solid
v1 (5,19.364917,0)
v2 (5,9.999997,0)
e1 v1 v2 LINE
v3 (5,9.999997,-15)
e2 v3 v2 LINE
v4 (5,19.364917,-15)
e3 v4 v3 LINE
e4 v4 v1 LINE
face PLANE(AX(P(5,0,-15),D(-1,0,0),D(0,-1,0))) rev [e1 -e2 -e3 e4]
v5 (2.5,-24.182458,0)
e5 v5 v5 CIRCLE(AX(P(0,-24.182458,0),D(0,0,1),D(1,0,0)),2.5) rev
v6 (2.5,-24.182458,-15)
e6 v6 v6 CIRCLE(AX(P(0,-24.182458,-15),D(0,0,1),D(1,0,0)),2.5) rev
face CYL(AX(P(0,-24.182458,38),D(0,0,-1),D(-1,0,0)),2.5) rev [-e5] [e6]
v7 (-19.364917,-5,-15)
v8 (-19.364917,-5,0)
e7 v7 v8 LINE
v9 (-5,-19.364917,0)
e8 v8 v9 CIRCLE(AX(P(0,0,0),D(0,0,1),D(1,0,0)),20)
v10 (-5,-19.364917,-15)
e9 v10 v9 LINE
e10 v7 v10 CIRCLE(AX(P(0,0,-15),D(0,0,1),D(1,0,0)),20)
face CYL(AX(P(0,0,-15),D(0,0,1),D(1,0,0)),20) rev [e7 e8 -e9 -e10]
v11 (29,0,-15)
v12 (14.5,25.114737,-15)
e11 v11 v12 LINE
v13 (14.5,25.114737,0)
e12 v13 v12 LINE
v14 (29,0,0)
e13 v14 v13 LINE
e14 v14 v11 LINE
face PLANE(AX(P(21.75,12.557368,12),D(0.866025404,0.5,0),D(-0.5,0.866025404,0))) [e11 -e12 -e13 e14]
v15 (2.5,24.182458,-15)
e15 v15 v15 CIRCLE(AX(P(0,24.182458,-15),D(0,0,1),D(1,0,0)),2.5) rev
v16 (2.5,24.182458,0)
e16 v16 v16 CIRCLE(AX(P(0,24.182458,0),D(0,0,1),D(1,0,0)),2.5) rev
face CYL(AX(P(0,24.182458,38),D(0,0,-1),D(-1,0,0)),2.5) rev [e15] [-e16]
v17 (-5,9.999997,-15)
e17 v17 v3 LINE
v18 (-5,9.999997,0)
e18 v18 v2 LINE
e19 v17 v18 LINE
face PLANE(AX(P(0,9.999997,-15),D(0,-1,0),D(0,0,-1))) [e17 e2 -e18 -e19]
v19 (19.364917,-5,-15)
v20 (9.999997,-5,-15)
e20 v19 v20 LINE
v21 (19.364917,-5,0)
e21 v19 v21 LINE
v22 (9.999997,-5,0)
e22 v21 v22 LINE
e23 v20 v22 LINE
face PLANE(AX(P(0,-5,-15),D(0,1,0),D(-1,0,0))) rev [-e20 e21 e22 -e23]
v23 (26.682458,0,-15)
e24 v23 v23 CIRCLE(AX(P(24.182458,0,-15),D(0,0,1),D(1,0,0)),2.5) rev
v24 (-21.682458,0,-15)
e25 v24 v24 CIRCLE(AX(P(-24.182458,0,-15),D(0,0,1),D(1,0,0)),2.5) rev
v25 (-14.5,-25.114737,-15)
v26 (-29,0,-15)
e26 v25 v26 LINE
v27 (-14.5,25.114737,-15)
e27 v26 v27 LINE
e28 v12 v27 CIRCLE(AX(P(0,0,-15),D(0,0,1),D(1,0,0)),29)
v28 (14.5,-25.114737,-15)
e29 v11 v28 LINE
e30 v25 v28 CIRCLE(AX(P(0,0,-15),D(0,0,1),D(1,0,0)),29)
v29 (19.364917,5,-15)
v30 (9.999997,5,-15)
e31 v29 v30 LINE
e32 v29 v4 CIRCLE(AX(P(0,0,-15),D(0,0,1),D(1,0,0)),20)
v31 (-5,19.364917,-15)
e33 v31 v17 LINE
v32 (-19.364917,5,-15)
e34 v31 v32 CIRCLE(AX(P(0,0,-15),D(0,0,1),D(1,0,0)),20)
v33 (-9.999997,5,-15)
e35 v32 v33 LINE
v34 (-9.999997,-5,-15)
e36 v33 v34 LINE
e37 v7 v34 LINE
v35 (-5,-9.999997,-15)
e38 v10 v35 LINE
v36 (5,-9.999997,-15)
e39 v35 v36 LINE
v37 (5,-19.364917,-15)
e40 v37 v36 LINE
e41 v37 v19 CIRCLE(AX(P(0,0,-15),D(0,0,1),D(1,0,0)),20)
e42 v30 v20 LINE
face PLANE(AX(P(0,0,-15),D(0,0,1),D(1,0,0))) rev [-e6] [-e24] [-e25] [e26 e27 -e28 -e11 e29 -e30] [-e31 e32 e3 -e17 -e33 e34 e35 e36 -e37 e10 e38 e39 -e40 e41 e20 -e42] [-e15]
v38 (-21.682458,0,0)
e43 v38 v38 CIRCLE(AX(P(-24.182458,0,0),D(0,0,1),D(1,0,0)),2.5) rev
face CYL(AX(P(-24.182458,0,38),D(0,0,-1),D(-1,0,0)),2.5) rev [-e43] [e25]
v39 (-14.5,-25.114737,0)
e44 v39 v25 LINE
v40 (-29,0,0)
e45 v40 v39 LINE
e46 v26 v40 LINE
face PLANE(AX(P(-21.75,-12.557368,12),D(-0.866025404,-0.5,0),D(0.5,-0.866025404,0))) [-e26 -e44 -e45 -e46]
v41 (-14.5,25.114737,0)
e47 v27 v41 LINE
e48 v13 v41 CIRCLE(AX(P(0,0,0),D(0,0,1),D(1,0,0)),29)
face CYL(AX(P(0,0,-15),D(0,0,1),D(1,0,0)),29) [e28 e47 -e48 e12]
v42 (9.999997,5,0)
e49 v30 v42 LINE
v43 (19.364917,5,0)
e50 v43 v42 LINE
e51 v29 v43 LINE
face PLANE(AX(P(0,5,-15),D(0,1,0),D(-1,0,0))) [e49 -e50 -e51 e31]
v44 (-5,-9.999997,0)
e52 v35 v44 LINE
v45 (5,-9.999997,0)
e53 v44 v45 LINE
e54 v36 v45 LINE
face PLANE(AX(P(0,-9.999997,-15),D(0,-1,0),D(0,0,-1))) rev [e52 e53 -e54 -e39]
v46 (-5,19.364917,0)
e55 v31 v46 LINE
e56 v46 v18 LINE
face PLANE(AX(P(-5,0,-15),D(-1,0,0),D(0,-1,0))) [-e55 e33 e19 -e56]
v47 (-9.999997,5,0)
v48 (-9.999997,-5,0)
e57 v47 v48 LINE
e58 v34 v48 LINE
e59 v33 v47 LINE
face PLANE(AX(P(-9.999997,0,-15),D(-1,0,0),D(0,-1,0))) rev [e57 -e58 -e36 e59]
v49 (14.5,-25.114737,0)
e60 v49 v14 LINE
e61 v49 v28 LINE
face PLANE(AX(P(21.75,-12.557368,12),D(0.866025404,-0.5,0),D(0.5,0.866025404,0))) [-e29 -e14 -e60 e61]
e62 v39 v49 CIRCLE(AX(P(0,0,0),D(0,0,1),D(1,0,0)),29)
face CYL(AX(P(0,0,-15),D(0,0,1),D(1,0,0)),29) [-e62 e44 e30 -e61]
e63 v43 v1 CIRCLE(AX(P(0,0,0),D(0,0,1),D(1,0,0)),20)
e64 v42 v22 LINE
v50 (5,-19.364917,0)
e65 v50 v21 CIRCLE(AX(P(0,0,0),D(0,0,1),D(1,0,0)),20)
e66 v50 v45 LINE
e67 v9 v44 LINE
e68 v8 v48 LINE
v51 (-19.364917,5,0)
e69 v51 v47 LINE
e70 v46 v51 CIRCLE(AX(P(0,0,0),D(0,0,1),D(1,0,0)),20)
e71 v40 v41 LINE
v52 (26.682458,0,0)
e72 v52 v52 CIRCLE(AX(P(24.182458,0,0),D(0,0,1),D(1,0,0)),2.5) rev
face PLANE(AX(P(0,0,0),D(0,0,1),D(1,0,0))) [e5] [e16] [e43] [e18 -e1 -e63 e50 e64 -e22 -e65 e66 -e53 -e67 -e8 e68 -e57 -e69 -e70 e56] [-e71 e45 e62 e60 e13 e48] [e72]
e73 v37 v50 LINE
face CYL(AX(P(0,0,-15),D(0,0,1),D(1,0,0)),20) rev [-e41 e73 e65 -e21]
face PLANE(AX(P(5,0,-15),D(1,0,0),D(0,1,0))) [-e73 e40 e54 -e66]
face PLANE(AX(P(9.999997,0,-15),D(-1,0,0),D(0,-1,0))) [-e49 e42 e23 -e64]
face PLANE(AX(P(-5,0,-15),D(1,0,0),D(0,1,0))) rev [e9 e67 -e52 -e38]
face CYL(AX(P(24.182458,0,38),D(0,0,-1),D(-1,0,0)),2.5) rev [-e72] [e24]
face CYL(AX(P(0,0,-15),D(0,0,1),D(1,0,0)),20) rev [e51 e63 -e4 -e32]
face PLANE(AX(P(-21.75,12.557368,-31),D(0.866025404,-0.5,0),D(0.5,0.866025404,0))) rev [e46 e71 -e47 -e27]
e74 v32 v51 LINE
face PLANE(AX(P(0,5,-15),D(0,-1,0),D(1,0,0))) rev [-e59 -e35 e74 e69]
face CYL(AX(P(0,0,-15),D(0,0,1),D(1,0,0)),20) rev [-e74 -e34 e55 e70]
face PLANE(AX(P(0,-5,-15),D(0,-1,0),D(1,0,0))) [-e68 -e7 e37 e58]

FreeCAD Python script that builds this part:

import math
import FreeCAD as App
import Part
import Sketcher
from FreeCAD import Vector
Q = App.Units.Quantity

doc = App.newDocument("Part")
body = doc.addObject("PartDesign::Body", "Body")

sketch1 = doc.addObject("Sketcher::SketchObject", "Sketch")
body.addObject(sketch1)
sketch1.AttachmentSupport = (doc.XY_Plane, [""])
sketch1.MapMode = "FlatFace"
sketch1.addGeometry([
    Part.Circle(Vector(0, 0, 0), Vector(0, 0, 1), 29),
    Part.Circle(Vector(0, 0, 0), Vector(0, 0, 1), 20),
], False)
sketch1.addConstraint([
    Sketcher.Constraint("Coincident", 0, 3, -1, 1),
    Sketcher.Constraint("Coincident", 1, 3, -1, 1),
    Sketcher.Constraint("Diameter", 0, Q("58 mm")),
    Sketcher.Constraint("Diameter", 1, Q("40 mm")),
])
pad1 = doc.addObject("PartDesign::Pad", "Pad")
body.addObject(pad1)
pad1.Profile = sketch1
pad1.Length = 15
pad1.Reversed = True

sketch2 = doc.addObject("Sketcher::SketchObject", "Sketch001")
body.addObject(sketch2)
sketch2.AttachmentSupport = (doc.XY_Plane, [""])
sketch2.MapMode = "FlatFace"
sketch2.addGeometry([
    Part.ArcOfCircle(Part.Circle(Vector(0, 0, 0), Vector(0, 0, 1), 20), math.radians(0), math.radians(14.48)),
    Part.LineSegment(Vector(19, 5, 0), Vector(10, 5, 0)),
    Part.LineSegment(Vector(10, 5, 0), Vector(10, -5, 0)),
    Part.LineSegment(Vector(10, -5, 0), Vector(19, -5, 0)),
    Part.ArcOfCircle(Part.Circle(Vector(0, 0, 0), Vector(0, 0, 1), 20), math.radians(-14.48), math.radians(0)),
    Part.ArcOfCircle(Part.Circle(Vector(0, 0, 0), Vector(0, 0, 1), 20), math.radians(76), math.radians(104)),
    Part.LineSegment(Vector(-5, 19, 0), Vector(-5, 10, 0)),
    Part.LineSegment(Vector(-5, 10, 0), Vector(5, 10, 0)),
    Part.LineSegment(Vector(5, 10, 0), Vector(5, 19, 0)),
    Part.LineSegment(Vector(-10, -5, 0), Vector(-10, 5, 0)),
    Part.LineSegment(Vector(-10, 5, 0), Vector(-19, 5, 0)),
    Part.ArcOfCircle(Part.Circle(Vector(0, 0, 0), Vector(0, 0, 1), 20), math.radians(166), math.radians(194)),
    Part.LineSegment(Vector(-19, -5, 0), Vector(-10, -5, 0)),
    Part.LineSegment(Vector(-5, -10, 0), Vector(-5, -19, 0)),
    Part.ArcOfCircle(Part.Circle(Vector(0, 0, 0), Vector(0, 0, 1), 20), math.radians(-104), math.radians(-76)),
    Part.LineSegment(Vector(5, -19, 0), Vector(5, -10, 0)),
    Part.LineSegment(Vector(5, -10, 0), Vector(-5, -10, 0)),
], False)
sketch2.addConstraint([
    Sketcher.Constraint("Coincident", 0, 2, 1, 1),
    Sketcher.Constraint("Coincident", 1, 2, 2, 1),
    Sketcher.Constraint("Coincident", 2, 2, 3, 1),
    Sketcher.Constraint("Coincident", 3, 2, 4, 1),
    Sketcher.Constraint("Tangent", 4, 2, 0, 1),
    Sketcher.Constraint("Coincident", 5, 2, 6, 1),
    Sketcher.Constraint("Coincident", 6, 2, 7, 1),
    Sketcher.Constraint("Coincident", 7, 2, 8, 1),
    Sketcher.Constraint("Coincident", 8, 2, 5, 1),
    Sketcher.Constraint("Coincident", 9, 2, 10, 1),
    Sketcher.Constraint("Coincident", 10, 2, 11, 1),
    Sketcher.Constraint("Coincident", 11, 2, 12, 1),
    Sketcher.Constraint("Coincident", 12, 2, 9, 1),
    Sketcher.Constraint("Coincident", 13, 2, 14, 1),
    Sketcher.Constraint("Coincident", 14, 2, 15, 1),
    Sketcher.Constraint("Coincident", 15, 2, 16, 1),
    Sketcher.Constraint("Coincident", 16, 2, 13, 1),
    Sketcher.Constraint("Horizontal", 1),
    Sketcher.Constraint("Vertical", 2),
    Sketcher.Constraint("Horizontal", 3),
    Sketcher.Constraint("Vertical", 6),
    Sketcher.Constraint("Horizontal", 7),
    Sketcher.Constraint("Vertical", 8),
    Sketcher.Constraint("Vertical", 9),
    Sketcher.Constraint("Horizontal", 10),
    Sketcher.Constraint("Horizontal", 12),
    Sketcher.Constraint("Vertical", 13),
    Sketcher.Constraint("Vertical", 15),
    Sketcher.Constraint("Horizontal", 16),
    Sketcher.Constraint("Coincident", 0, 3, -1, 1),
    Sketcher.Constraint("Coincident", 5, 3, -1, 1),
    Sketcher.Constraint("Coincident", 11, 3, -1, 1),
    Sketcher.Constraint("Coincident", 14, 3, -1, 1),
    Sketcher.Constraint("Equal", 0, 4),
    Sketcher.Constraint("Equal", 4, 5),
    Sketcher.Constraint("Equal", 5, 11),
    Sketcher.Constraint("Equal", 11, 14),
    Sketcher.Constraint("Symmetric", 2, 2, 9, 2, -1, 1),
    Sketcher.Constraint("Symmetric", 6, 2, 15, 2, -1, 1),
    Sketcher.Constraint("PointOnObject", 4, 2, -1),
    Sketcher.Constraint("Horizontal", 5, 2, 8, 2),
    Sketcher.Constraint("Horizontal", 1, 2, 9, 2),
    Sketcher.Constraint("Horizontal", 3, 2, 11, 2),
    Sketcher.Constraint("Horizontal", 13, 2, 14, 2),
    Sketcher.Constraint("Equal", 16, 2),
    Sketcher.Constraint("Equal", 12, 6),
    Sketcher.Constraint("Radius", 0, Q("20 mm")),
    Sketcher.Constraint("DistanceX", 7, 1, 7, 2, Q("10 mm")),
    Sketcher.Constraint("DistanceX", 1, 2, 1, 1, Q("9.36492 mm")),
])
pad2 = doc.addObject("PartDesign::Pad", "Pad001")
body.addObject(pad2)
pad2.Profile = sketch2
pad2.Length = 15
pad2.Reversed = True

sketch3 = doc.addObject("Sketcher::SketchObject", "Sketch002")
body.addObject(sketch3)
sketch3.AttachmentSupport = (doc.XY_Plane, [""])
sketch3.MapMode = "FlatFace"
sketch3.addGeometry([
    Part.Circle(Vector(0, 24.2, 0), Vector(0, 0, 1), 2.5),
    Part.Circle(Vector(24.2, 0, 0), Vector(0, 0, 1), 2.5),
    Part.Circle(Vector(0, -24.2, 0), Vector(0, 0, 1), 2.5),
    Part.Circle(Vector(-24.2, 0, 0), Vector(0, 0, 1), 2.5),
], False)
sketch3.addConstraint([
    Sketcher.Constraint("Equal", 0, 1),
    Sketcher.Constraint("Equal", 1, 2),
    Sketcher.Constraint("Equal", 2, 3),
    Sketcher.Constraint("Symmetric", 0, 3, 2, 3, -1, 1),
    Sketcher.Constraint("Symmetric", 1, 3, 3, 3, -1, 1),
    Sketcher.Constraint("PointOnObject", 0, 3, -2),
    Sketcher.Constraint("PointOnObject", 1, 3, -1),
    Sketcher.Constraint("Diameter", 0, Q("5 mm")),
    Sketcher.Constraint("DistanceY", -1, 1, 0, 3, Q("24.182458 mm")),
    Sketcher.Constraint("DistanceX", -1, 1, 1, 3, Q("24.182458 mm")),
])
pocket1 = doc.addObject("PartDesign::Pocket", "Pocket")
body.addObject(pocket1)
pocket1.Profile = sketch3
pocket1.Type = "ThroughAll"
pocket1.Midplane = True

sketch4 = doc.addObject("Sketcher::SketchObject", "Sketch003")
body.addObject(sketch4)
sketch4.AttachmentSupport = (doc.XY_Plane, [""])
sketch4.MapMode = "FlatFace"
sketch4.AttachmentOffset = App.Placement(Vector(0, 0, -15), App.Rotation())
sketch4.addGeometry([
    Part.LineSegment(Vector(-14, 25, 0), Vector(-29, 0, 0)),
    Part.ArcOfCircle(Part.Circle(Vector(0, 0, 0), Vector(0, 0, 1), 29), math.radians(120), math.radians(180)),
    Part.LineSegment(Vector(29, 0, 0), Vector(14, 25, 0)),
    Part.ArcOfCircle(Part.Circle(Vector(0, 0, 0), Vector(0, 0, 1), 29), math.radians(0), math.radians(60)),
    Part.ArcOfCircle(Part.Circle(Vector(0, 0, 0), Vector(0, 0, 1), 29), math.radians(-60), math.radians(0)),
    Part.LineSegment(Vector(14, -25, 0), Vector(29, 0, 0)),
    Part.ArcOfCircle(Part.Circle(Vector(0, 0, 0), Vector(0, 0, 1), 29), math.radians(180), math.radians(240)),
    Part.LineSegment(Vector(-29, 0, 0), Vector(-14, -25, 0)),
], False)
sketch4.addConstraint([
    Sketcher.Constraint("Coincident", 0, 1, 1, 1),
    Sketcher.Constraint("Coincident", 1, 2, 0, 2),
    Sketcher.Constraint("Coincident", 2, 1, 3, 1),
    Sketcher.Constraint("Coincident", 3, 2, 2, 2),
    Sketcher.Constraint("Coincident", 4, 1, 5, 1),
    Sketcher.Constraint("Coincident", 5, 2, 4, 2),
    Sketcher.Constraint("Coincident", 6, 1, 7, 1),
    Sketcher.Constraint("Coincident", 7, 2, 6, 2),
    Sketcher.Constraint("Coincident", 1, 3, -1, 1),
    Sketcher.Constraint("Coincident", 3, 3, -1, 1),
    Sketcher.Constraint("Coincident", 4, 3, -1, 1),
    Sketcher.Constraint("Coincident", 6, 3, -1, 1),
    Sketcher.Constraint("Coincident", 5, 2, 2, 1),
    Sketcher.Constraint("Coincident", 6, 1, 1, 2),
    Sketcher.Constraint("Equal", 1, 3),
    Sketcher.Constraint("PointOnObject", 1, 2, -1),
    Sketcher.Constraint("PointOnObject", 2, 1, -1),
    Sketcher.Constraint("Parallel", 0, 5),
    Sketcher.Constraint("Parallel", 2, 7),
    Sketcher.Constraint("Horizontal", 0, 1, 3, 2),
    Sketcher.Constraint("Radius", 1, Q("29 mm")),
    Sketcher.Constraint("Angle", 0, Q("-120 deg")),
])
pocket2 = doc.addObject("PartDesign::Pocket", "Pocket001")
body.addObject(pocket2)
pocket2.Profile = sketch4
pocket2.Type = "ThroughAll"
pocket2.Midplane = True

doc.recompute()
